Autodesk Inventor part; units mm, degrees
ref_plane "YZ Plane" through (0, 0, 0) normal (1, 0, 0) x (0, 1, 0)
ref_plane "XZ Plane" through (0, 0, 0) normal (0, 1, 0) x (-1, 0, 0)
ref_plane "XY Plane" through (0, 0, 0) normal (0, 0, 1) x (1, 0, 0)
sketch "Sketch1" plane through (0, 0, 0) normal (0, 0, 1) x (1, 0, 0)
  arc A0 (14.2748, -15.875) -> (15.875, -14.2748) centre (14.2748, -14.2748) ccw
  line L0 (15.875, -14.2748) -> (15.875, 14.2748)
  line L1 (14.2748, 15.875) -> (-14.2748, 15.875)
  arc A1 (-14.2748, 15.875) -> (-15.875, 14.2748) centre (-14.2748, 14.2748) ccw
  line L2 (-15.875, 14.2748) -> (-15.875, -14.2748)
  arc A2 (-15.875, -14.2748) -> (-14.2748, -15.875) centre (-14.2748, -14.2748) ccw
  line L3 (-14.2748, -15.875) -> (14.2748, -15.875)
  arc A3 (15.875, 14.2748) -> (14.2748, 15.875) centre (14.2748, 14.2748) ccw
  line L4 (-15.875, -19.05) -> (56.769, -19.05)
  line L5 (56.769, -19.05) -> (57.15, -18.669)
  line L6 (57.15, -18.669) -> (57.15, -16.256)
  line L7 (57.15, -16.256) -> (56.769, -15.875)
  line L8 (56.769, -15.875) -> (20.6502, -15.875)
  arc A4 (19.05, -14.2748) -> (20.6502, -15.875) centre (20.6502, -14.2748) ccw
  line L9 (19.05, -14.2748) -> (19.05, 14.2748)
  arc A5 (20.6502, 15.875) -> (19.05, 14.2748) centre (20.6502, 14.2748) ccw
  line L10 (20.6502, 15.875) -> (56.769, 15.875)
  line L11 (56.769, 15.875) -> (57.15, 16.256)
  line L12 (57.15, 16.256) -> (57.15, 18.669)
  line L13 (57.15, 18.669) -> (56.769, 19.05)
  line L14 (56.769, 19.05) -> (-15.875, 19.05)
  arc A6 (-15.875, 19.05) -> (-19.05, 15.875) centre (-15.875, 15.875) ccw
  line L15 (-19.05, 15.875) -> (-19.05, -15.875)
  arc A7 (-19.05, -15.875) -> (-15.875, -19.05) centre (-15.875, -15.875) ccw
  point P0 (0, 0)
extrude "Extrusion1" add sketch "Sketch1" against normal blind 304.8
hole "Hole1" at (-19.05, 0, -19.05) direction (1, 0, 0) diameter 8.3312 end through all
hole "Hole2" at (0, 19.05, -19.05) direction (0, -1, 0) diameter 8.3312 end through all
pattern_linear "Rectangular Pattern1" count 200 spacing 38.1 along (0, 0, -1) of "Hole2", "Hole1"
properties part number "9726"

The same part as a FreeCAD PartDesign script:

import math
import FreeCAD as App
import Part
import Sketcher
from FreeCAD import Vector
Q = App.Units.Quantity

doc = App.newDocument("Part")
body = doc.addObject("PartDesign::Body", "Body")

sketch1 = body.newObject("Sketcher::SketchObject", "Sketch")
sketch1.AttachmentSupport = (doc.getObject("XY_Plane"), [""])
sketch1.MapMode = "FlatFace"
sketch1.addGeometry([
    Part.ArcOfCircle(Part.Circle(Vector(-15.875, -15.875, 0), Vector(0, 0, 1), 3.175), math.radians(180), math.radians(270)),
    Part.LineSegment(Vector(-15.875, -19.05, 0), Vector(56.769, -19.05, 0)),
    Part.LineSegment(Vector(56.769, -19.05, 0), Vector(57.15, -18.669, 0)),
    Part.LineSegment(Vector(57.15, -18.669, 0), Vector(57.15, -16.256, 0)),
    Part.LineSegment(Vector(57.15, -16.256, 0), Vector(56.769, -15.875, 0)),
    Part.LineSegment(Vector(56.769, -15.875, 0), Vector(20.6502, -15.875, 0)),
    Part.ArcOfCircle(Part.Circle(Vector(20.6502, -14.2748, 0), Vector(0, 0, 1), 1.6002), math.radians(180), math.radians(270)),
    Part.LineSegment(Vector(19.05, -14.2748, 0), Vector(19.05, 14.2748, 0)),
    Part.ArcOfCircle(Part.Circle(Vector(20.6502, 14.2748, 0), Vector(0, 0, 1), 1.6002), math.radians(90), math.radians(180)),
    Part.LineSegment(Vector(20.6502, 15.875, 0), Vector(56.769, 15.875, 0)),
    Part.LineSegment(Vector(56.769, 15.875, 0), Vector(57.15, 16.256, 0)),
    Part.LineSegment(Vector(57.15, 16.256, 0), Vector(57.15, 18.669, 0)),
    Part.LineSegment(Vector(57.15, 18.669, 0), Vector(56.769, 19.05, 0)),
    Part.LineSegment(Vector(56.769, 19.05, 0), Vector(-15.875, 19.05, 0)),
    Part.ArcOfCircle(Part.Circle(Vector(-15.875, 15.875, 0), Vector(0, 0, 1), 3.175), math.radians(90), math.radians(180)),
    Part.LineSegment(Vector(-19.05, 15.875, 0), Vector(-19.05, -15.875, 0)),
    Part.ArcOfCircle(Part.Circle(Vector(14.2748, -14.2748, 0), Vector(0, 0, 1), 1.6002), math.radians(-90), math.radians(0)),
    Part.LineSegment(Vector(14.2748, -15.875, 0), Vector(-14.2748, -15.875, 0)),
    Part.ArcOfCircle(Part.Circle(Vector(-14.2748, -14.2748, 0), Vector(0, 0, 1), 1.6002), math.radians(180), math.radians(270)),
    Part.LineSegment(Vector(-15.875, -14.2748, 0), Vector(-15.875, 14.2748, 0)),
    Part.ArcOfCircle(Part.Circle(Vector(-14.2748, 14.2748, 0), Vector(0, 0, 1), 1.6002), math.radians(90), math.radians(180)),
    Part.LineSegment(Vector(-14.2748, 15.875, 0), Vector(14.2748, 15.875, 0)),
    Part.ArcOfCircle(Part.Circle(Vector(14.2748, 14.2748, 0), Vector(0, 0, 1), 1.6002), math.radians(0), math.radians(90)),
    Part.LineSegment(Vector(15.875, 14.2748, 0), Vector(15.875, -14.2748, 0)),
], False)
sketch1.addConstraint([
    Sketcher.Constraint("Tangent", 0, 2, 1, 1),
    Sketcher.Constraint("Coincident", 1, 2, 2, 1),
    Sketcher.Constraint("Coincident", 2, 2, 3, 1),
    Sketcher.Constraint("Coincident", 3, 2, 4, 1),
    Sketcher.Constraint("Coincident", 4, 2, 5, 1),
    Sketcher.Constraint("Tangent", 5, 2, 6, 2),
    Sketcher.Constraint("Tangent", 6, 1, 7, 1),
    Sketcher.Constraint("Tangent", 7, 2, 8, 2),
    Sketcher.Constraint("Tangent", 8, 1, 9, 1),
    Sketcher.Constraint("Coincident", 9, 2, 10, 1),
    Sketcher.Constraint("Coincident", 10, 2, 11, 1),
    Sketcher.Constraint("Coincident", 11, 2, 12, 1),
    Sketcher.Constraint("Coincident", 12, 2, 13, 1),
    Sketcher.Constraint("Tangent", 13, 2, 14, 1),
    Sketcher.Constraint("Tangent", 14, 2, 15, 1),
    Sketcher.Constraint("Tangent", 15, 2, 0, 1),
    Sketcher.Constraint("Tangent", 16, 1, 17, 1),
    Sketcher.Constraint("Tangent", 17, 2, 18, 2),
    Sketcher.Constraint("Tangent", 18, 1, 19, 1),
    Sketcher.Constraint("Tangent", 19, 2, 20, 2),
    Sketcher.Constraint("Tangent", 20, 1, 21, 1),
    Sketcher.Constraint("Tangent", 21, 2, 22, 2),
    Sketcher.Constraint("Tangent", 22, 1, 23, 1),
    Sketcher.Constraint("Tangent", 23, 2, 16, 2),
    Sketcher.Constraint("Horizontal", 1),
    Sketcher.Constraint("Vertical", 3),
    Sketcher.Constraint("Horizontal", 5),
    Sketcher.Constraint("Vertical", 7),
    Sketcher.Constraint("Horizontal", 9),
    Sketcher.Constraint("Vertical", 11),
    Sketcher.Constraint("Horizontal", 13),
    Sketcher.Constraint("Vertical", 15),
    Sketcher.Constraint("Horizontal", 17),
    Sketcher.Constraint("Vertical", 19),
    Sketcher.Constraint("Horizontal", 21),
    Sketcher.Constraint("Vertical", 23),
    Sketcher.Constraint("Equal", 6, 8),
    Sketcher.Constraint("Equal", 0, 14),
    Sketcher.Constraint("Equal", 8, 16),
    Sketcher.Constraint("Equal", 16, 18),
    Sketcher.Constraint("Equal", 18, 20),
    Sketcher.Constraint("Equal", 20, 22),
    Sketcher.Constraint("Symmetric", 16, 3, 20, 3, -1, 1),
    Sketcher.Constraint("Symmetric", 4, 2, 9, 2, -1),
    Sketcher.Constraint("Symmetric", 3, 2, 10, 2, -1),
    Sketcher.Constraint("Symmetric", 1, 2, 12, 2, -1),
    Sketcher.Constraint("Perpendicular", 2, 4),
    Sketcher.Constraint("Perpendicular", 4, 10),
    Sketcher.Constraint("Perpendicular", 10, 12),
    Sketcher.Constraint("Horizontal", 6, 3, 16, 3),
    Sketcher.Constraint("Horizontal", 0, 3, 4, 2),
    Sketcher.Constraint("Vertical", 1, 2, 4, 2),
    Sketcher.Constraint("Vertical", 13, 2, 18, 1),
    Sketcher.Constraint("Equal", 21, 7),
    Sketcher.Constraint("Radius", 0, Q("0.125 in")),
    Sketcher.Constraint("Radius", 6, Q("0.063 in")),
    Sketcher.Constraint("DistanceX", 1, 1, 1, 2, Q("2.86 in")),
    Sketcher.Constraint("DistanceY", 15, 2, 15, 1, Q("1.25 in")),
    Sketcher.Constraint("DistanceX", 5, 2, 5, 1, Q("1.422 in")),
    Sketcher.Constraint("DistanceY", 3, 1, 3, 2, Q("0.095 in")),
])
pad1 = body.newObject("PartDesign::Pad", "Pad")
pad1.Profile = sketch1
pad1.Length = Q("12 in")
pad1.Reversed = True

sketch2 = body.newObject("Sketcher::SketchObject", "Sketch001")
sketch2.AttachmentSupport = (doc.getObject("YZ_Plane"), [""])
sketch2.MapMode = "FlatFace"
sketch2.AttachmentOffset = App.Placement(Vector(0, 0, -0.75 * 25.4), App.Rotation())
sketch2.addGeometry(Part.Circle(Vector(0, -19.05, 0), Vector(0, 0, 1), 4.1656), False)
sketch2.addConstraint([
    Sketcher.Constraint("PointOnObject", 0, 3, -2),
    Sketcher.Constraint("Diameter", 0, Q("0.328 in")),
    Sketcher.Constraint("DistanceY", 0, 3, -1, 1, Q("0.75 in")),
])
doc.recompute()
hole = body.newObject("PartDesign::Hole", "Hole")
hole.Profile = sketch2
hole.ThreadType = "None"
hole.Diameter = Q("0.328 in")
hole.DepthType = "ThroughAll"
hole.Reversed = True

sketch3 = body.newObject("Sketcher::SketchObject", "Sketch002")
sketch3.AttachmentSupport = (doc.getObject("XZ_Plane"), [""])
sketch3.MapMode = "FlatFace"
sketch3.AttachmentOffset = App.Placement(Vector(0, 0, -0.75 * 25.4), App.Rotation())
sketch3.addGeometry(Part.Circle(Vector(0, -19.05, 0), Vector(0, 0, 1), 4.1656), False)
sketch3.addConstraint([
    Sketcher.Constraint("PointOnObject", 0, 3, -2),
    Sketcher.Constraint("Diameter", 0, Q("0.328 in")),
    Sketcher.Constraint("DistanceY", 0, 3, -1, 1, Q("0.75 in")),
])
doc.recompute()
hole2 = body.newObject("PartDesign::Hole", "Hole001")
hole2.Profile = sketch3
hole2.ThreadType = "None"
hole2.Diameter = Q("0.328 in")
hole2.DepthType = "ThroughAll"
hole2.Reversed = True
doc.recompute()

linearpattern = body.newObject("PartDesign::LinearPattern", "LinearPattern")
linearpattern.Originals = [hole2, hole]
linearpattern.Direction = (doc.getObject("Z_Axis"), [""])
linearpattern.Mode = "offset"
linearpattern.Offset = Q("1.5 in")
linearpattern.Occurrences = 200
linearpattern.Reversed = True
body.Tip = linearpattern

doc.recompute()
